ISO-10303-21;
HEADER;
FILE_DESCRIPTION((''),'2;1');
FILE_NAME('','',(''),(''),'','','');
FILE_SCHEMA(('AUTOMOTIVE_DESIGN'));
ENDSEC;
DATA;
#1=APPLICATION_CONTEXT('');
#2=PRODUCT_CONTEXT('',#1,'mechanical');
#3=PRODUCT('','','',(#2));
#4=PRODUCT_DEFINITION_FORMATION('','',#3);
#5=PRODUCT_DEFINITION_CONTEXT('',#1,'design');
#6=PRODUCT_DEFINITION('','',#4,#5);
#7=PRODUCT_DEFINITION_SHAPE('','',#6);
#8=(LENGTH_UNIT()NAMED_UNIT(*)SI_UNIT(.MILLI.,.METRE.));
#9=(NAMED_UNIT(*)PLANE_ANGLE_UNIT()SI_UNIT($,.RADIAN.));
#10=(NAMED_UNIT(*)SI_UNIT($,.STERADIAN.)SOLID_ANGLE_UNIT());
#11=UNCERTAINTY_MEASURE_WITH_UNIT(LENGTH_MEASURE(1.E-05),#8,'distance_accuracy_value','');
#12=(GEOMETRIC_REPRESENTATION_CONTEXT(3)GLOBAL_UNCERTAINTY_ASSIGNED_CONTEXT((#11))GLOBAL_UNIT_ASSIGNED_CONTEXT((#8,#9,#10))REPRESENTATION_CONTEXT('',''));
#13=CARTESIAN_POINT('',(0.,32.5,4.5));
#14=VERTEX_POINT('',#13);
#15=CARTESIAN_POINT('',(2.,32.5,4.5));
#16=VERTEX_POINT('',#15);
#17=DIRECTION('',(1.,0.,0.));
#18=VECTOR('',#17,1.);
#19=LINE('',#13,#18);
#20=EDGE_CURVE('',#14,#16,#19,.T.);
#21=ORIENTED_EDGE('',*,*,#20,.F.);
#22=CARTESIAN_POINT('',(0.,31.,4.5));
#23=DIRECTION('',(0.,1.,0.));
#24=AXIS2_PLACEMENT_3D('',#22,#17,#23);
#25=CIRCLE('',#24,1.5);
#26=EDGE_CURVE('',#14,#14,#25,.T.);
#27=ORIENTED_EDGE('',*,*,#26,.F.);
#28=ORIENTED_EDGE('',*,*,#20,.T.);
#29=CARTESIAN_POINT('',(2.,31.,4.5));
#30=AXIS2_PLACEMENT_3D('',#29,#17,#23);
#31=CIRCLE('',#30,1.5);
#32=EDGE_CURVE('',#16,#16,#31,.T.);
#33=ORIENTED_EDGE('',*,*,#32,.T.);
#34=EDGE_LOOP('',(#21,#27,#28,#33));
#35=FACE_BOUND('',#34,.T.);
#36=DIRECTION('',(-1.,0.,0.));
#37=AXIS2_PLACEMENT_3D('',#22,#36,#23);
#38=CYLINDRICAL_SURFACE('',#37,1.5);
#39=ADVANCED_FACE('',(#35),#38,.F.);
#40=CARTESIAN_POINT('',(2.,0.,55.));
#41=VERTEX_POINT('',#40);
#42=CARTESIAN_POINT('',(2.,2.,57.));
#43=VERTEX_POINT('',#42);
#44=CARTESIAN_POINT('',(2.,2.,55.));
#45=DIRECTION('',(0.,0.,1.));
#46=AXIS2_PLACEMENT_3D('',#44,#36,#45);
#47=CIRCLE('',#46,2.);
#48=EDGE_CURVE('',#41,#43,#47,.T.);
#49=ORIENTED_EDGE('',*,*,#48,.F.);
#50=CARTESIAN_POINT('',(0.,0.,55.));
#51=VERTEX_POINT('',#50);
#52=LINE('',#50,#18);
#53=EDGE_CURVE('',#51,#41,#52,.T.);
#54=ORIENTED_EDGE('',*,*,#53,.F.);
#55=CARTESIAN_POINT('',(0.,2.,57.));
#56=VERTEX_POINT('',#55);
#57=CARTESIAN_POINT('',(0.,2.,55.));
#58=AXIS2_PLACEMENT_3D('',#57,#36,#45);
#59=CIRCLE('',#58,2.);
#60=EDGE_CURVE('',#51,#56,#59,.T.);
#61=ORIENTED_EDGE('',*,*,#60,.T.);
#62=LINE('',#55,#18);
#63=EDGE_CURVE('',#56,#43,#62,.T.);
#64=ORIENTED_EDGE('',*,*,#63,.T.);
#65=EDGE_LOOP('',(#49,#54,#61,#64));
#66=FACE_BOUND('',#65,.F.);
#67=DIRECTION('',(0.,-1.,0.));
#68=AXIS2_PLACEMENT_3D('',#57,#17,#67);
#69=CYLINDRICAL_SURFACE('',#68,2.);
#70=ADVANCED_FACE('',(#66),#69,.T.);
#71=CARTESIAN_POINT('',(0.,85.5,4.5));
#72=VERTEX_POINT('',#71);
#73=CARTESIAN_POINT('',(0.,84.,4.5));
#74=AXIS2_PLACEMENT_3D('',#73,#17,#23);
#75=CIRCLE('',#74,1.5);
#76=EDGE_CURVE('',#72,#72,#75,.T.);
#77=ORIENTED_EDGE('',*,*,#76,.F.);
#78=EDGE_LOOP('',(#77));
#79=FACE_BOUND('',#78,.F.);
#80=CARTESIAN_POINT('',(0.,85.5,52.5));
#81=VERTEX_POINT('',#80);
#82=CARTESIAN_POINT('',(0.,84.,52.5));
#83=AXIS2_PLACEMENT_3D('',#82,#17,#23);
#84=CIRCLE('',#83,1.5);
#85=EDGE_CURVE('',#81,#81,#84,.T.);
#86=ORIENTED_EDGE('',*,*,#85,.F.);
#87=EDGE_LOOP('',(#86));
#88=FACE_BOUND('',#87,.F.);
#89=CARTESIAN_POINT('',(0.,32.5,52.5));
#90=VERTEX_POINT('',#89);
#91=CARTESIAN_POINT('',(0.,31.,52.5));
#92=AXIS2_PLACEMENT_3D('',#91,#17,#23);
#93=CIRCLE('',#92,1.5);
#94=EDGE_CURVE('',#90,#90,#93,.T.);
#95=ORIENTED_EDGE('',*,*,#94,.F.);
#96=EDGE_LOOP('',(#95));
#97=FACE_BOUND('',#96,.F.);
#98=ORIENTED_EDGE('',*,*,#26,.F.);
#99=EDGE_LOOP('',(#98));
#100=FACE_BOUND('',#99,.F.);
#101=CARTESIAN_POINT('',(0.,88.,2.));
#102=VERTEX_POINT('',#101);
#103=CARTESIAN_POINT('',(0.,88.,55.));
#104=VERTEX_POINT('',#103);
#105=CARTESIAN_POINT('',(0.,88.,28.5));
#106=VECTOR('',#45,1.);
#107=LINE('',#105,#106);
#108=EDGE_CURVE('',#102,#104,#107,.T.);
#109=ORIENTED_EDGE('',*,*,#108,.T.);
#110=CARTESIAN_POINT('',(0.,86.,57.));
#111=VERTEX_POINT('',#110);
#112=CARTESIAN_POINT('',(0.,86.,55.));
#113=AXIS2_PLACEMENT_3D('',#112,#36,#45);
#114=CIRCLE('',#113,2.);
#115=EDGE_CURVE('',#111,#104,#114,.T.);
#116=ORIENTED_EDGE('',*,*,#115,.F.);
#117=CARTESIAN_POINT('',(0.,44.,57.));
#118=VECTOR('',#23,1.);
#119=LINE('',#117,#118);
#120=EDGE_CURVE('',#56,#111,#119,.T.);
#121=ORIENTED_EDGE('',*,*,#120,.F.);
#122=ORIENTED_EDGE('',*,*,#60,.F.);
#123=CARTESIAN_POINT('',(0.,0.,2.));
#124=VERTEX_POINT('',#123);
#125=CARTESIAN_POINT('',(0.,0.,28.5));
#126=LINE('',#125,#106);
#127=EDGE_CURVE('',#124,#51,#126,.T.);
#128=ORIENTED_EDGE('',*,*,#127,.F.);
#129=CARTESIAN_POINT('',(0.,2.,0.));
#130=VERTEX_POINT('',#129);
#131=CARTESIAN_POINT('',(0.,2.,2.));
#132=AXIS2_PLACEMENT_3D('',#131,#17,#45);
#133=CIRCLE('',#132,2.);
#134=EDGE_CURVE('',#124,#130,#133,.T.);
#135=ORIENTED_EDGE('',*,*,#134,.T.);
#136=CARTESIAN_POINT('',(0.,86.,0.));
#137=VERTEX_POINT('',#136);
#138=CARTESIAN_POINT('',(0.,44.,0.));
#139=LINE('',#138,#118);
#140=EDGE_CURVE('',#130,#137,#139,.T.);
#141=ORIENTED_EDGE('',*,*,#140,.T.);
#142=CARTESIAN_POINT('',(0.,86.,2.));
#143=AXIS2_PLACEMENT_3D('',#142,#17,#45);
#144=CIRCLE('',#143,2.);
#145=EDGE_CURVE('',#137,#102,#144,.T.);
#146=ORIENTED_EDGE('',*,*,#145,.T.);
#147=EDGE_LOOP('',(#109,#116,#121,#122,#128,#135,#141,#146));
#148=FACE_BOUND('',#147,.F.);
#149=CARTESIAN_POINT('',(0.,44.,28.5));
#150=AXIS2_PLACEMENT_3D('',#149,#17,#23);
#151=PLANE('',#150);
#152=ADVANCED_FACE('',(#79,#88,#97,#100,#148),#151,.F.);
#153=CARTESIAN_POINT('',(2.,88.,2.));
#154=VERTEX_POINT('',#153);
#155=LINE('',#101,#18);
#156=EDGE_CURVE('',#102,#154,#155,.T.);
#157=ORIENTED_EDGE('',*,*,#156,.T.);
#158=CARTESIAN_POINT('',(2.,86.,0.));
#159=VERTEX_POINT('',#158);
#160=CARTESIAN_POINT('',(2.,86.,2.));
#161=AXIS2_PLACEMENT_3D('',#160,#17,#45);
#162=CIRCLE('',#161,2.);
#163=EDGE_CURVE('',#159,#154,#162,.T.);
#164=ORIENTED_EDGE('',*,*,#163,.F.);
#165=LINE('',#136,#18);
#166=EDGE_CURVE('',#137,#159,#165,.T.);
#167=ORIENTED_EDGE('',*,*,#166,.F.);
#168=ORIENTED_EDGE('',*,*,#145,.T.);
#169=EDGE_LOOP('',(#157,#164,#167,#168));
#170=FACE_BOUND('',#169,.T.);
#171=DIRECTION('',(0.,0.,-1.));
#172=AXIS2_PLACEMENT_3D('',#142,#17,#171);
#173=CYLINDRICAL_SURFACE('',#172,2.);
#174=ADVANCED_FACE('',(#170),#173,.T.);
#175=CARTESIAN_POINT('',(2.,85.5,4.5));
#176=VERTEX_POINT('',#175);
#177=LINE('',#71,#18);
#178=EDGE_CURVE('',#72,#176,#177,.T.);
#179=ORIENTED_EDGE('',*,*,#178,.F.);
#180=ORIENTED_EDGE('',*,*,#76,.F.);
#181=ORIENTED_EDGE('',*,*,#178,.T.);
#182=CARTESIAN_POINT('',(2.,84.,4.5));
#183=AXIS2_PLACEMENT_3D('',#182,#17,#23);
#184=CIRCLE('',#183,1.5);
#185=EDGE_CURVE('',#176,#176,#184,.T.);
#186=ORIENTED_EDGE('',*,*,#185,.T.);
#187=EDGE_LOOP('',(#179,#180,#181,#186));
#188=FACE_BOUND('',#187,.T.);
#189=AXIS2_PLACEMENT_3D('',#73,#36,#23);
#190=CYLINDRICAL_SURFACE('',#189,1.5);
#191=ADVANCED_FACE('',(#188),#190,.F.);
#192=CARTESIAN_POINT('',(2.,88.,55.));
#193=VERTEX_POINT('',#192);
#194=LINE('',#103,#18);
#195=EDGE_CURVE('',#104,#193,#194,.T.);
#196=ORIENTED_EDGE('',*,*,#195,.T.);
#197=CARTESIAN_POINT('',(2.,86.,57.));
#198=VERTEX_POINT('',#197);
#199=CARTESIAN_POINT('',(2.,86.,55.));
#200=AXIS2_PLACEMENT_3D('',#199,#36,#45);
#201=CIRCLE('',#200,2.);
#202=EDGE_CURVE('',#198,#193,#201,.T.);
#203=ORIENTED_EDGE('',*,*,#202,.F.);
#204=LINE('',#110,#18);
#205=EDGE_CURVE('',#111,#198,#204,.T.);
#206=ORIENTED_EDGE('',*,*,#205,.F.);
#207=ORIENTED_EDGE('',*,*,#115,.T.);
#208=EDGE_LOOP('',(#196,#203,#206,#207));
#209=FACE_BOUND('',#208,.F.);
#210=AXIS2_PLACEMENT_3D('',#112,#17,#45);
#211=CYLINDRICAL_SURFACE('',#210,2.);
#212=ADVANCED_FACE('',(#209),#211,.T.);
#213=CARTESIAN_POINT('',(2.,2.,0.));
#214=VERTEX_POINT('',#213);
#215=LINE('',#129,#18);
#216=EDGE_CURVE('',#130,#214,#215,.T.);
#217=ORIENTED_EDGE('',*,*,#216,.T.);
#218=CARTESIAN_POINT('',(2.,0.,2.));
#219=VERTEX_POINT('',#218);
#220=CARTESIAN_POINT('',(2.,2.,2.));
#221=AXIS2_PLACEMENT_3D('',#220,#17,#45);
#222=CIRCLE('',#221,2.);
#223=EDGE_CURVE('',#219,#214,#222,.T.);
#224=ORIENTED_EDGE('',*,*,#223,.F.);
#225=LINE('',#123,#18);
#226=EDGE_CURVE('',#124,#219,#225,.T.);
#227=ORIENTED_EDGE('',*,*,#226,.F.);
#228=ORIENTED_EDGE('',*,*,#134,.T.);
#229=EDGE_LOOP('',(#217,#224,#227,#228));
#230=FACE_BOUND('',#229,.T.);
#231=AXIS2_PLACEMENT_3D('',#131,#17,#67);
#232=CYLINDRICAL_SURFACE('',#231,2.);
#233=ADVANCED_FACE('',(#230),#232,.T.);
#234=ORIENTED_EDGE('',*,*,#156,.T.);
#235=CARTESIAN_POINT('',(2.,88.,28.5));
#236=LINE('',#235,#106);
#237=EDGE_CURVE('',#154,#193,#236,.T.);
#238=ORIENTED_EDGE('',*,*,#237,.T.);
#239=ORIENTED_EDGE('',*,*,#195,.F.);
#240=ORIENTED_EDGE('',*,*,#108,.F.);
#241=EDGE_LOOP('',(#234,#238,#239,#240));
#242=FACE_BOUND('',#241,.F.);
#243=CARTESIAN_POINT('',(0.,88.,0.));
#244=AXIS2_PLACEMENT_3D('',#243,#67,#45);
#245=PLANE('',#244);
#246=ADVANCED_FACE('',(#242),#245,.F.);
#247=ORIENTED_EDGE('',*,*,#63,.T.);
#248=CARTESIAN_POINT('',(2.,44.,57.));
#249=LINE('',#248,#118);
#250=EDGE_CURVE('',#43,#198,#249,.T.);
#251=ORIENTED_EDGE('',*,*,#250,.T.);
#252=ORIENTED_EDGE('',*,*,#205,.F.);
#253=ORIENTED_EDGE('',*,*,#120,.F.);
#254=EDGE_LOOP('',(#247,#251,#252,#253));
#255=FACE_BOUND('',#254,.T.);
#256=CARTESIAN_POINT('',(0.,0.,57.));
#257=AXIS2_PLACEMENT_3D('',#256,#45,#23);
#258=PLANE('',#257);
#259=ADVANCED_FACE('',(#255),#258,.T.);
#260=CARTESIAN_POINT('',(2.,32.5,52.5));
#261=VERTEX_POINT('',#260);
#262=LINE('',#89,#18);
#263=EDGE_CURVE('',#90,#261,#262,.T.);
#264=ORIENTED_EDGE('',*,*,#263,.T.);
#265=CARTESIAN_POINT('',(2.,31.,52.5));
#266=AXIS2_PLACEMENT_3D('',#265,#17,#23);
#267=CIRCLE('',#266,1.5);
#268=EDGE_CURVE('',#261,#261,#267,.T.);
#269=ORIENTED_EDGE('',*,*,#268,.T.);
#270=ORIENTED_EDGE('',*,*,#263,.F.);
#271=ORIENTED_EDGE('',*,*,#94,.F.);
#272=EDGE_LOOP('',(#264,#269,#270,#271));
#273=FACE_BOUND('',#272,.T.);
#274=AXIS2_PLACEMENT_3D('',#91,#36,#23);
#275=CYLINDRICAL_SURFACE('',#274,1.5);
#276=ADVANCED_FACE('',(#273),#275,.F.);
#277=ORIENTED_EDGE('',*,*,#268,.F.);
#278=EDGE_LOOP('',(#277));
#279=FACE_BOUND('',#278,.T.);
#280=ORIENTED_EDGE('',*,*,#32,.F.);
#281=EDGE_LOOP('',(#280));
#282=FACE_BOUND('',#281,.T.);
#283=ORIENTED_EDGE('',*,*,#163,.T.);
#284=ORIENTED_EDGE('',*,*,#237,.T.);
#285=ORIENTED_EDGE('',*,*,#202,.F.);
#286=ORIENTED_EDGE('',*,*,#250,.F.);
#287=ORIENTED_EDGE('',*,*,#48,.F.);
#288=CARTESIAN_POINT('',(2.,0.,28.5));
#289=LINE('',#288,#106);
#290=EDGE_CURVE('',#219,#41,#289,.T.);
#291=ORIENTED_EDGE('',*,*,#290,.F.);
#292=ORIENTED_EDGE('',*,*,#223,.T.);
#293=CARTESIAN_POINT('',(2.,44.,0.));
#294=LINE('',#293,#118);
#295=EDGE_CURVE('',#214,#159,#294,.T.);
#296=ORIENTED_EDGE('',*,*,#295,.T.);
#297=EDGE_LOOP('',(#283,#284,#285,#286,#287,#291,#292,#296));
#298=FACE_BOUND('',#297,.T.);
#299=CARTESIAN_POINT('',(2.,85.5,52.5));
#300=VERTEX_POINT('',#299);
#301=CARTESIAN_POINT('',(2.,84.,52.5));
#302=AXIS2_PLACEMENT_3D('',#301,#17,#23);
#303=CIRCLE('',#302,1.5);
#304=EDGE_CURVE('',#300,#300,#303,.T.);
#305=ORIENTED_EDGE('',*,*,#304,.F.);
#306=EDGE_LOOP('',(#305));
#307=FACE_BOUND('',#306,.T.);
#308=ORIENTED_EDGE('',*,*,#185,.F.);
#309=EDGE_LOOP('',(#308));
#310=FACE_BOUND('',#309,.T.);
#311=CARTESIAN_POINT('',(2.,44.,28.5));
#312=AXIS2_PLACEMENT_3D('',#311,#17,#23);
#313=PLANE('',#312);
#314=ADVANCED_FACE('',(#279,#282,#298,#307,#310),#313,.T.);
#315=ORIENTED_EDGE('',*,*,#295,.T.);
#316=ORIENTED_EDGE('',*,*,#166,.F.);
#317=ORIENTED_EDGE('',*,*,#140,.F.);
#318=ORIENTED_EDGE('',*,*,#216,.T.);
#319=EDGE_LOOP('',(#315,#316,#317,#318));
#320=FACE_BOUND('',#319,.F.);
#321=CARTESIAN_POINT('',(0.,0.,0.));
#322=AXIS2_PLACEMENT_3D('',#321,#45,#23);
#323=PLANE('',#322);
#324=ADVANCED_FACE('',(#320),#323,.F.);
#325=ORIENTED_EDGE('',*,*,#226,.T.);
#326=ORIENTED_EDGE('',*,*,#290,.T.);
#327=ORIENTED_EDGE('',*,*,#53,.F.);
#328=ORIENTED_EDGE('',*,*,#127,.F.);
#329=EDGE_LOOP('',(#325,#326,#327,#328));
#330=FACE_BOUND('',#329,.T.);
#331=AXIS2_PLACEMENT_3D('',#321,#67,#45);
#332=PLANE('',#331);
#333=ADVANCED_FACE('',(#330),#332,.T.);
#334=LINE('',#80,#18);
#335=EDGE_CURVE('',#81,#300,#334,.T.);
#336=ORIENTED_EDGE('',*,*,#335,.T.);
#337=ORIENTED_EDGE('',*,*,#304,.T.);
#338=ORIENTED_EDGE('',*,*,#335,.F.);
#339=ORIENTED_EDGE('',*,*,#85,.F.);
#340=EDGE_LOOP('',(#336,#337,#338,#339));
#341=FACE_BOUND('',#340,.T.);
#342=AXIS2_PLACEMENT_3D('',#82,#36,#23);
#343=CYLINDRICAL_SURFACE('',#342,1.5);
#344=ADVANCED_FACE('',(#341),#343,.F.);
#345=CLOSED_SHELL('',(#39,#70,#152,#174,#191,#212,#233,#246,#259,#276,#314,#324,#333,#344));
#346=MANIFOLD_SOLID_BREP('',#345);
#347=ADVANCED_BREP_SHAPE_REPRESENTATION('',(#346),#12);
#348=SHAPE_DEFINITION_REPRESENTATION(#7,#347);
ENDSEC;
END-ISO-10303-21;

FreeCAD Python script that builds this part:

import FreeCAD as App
import Part
import Sketcher
Q = App.Units.Quantity


def edges_at(feature, points):
    """Names of the edges that pass closest to the given points."""
    edges = feature.Shape.Edges
    near = lambda p: min(range(len(edges)), key=lambda i: edges[i].distToShape(Part.Vertex(*p))[0])
    return sorted({f"Edge{near(p) + 1}" for p in points})

doc = App.newDocument("Part")
params = doc.addObject("Spreadsheet::Sheet", "Params")
for row, (alias, value) in enumerate([
    ("sketch1_diameter", "3 mm"),
    ("sketch1_width", "88 mm"),
    ("sketch1_height", "57 mm"),
    ("pad1_length", "2 mm"),
    ("fillet_radius", "2 mm"),
], start=1):
    params.set(f"A{row}", alias)
    params.set(f"B{row}", "=" + value)
    params.setAlias(f"B{row}", alias)

body = doc.addObject("PartDesign::Body", "Body")

sketch1 = body.newObject("Sketcher::SketchObject", "Sketch")
sketch1.AttachmentSupport = (doc.getObject("YZ_Plane"), [""])
sketch1.MapMode = "FlatFace"
sketch1.addGeometry([
    Part.LineSegment(App.Vector(0, 57, 0), App.Vector(0, 0, 0)),
    Part.LineSegment(App.Vector(0, 0, 0), App.Vector(88, 0, 0)),
    Part.LineSegment(App.Vector(88, 0, 0), App.Vector(88, 57, 0)),
    Part.LineSegment(App.Vector(88, 57, 0), App.Vector(0, 57, 0)),
    Part.Circle(App.Vector(31, 4.5, 0), App.Vector(0, 0, 1), 1.5),
    Part.Circle(App.Vector(84, 4.5, 0), App.Vector(0, 0, 1), 1.5),
    Part.Circle(App.Vector(31, 52.5, 0), App.Vector(0, 0, 1), 1.5),
    Part.Circle(App.Vector(84, 52.5, 0), App.Vector(0, 0, 1), 1.5),
], False)
sketch1.addConstraint([
    Sketcher.Constraint("Coincident", 0, 2, 1, 1),
    Sketcher.Constraint("Coincident", 1, 2, 2, 1),
    Sketcher.Constraint("Coincident", 2, 2, 3, 1),
    Sketcher.Constraint("Coincident", 3, 2, 0, 1),
    Sketcher.Constraint("Vertical", 0),
    Sketcher.Constraint("Horizontal", 1),
    Sketcher.Constraint("Vertical", 2),
    Sketcher.Constraint("Horizontal", 3),
    Sketcher.Constraint("Coincident", 0, 2, -1, 1),
    Sketcher.Constraint("Equal", 4, 5),
    Sketcher.Constraint("Equal", 5, 6),
    Sketcher.Constraint("Equal", 6, 7),
    Sketcher.Constraint("Horizontal", 4, 3, 5, 3),
    Sketcher.Constraint("Horizontal", 6, 3, 7, 3),
    Sketcher.Constraint("Vertical", 4, 3, 6, 3),
    Sketcher.Constraint("Vertical", 5, 3, 7, 3),
    Sketcher.Constraint("Diameter", 4, Q("3 mm")),
    Sketcher.Constraint("DistanceX", 1, 1, 1, 2, Q("88 mm")),
    Sketcher.Constraint("DistanceY", 0, 2, 0, 1, Q("57 mm")),
    Sketcher.Constraint("DistanceX", -1, 1, 4, 3, Q("31 mm")),
    Sketcher.Constraint("DistanceX", -1, 1, 5, 3, Q("84 mm")),
    Sketcher.Constraint("DistanceY", 4, 3, 6, 3, Q("48 mm")),
    Sketcher.Constraint("DistanceY", -1, 1, 4, 3, Q("4.5 mm")),
])
sketch1.setExpression("Constraints[16]", "Params.sketch1_diameter")
sketch1.setExpression("Constraints[17]", "Params.sketch1_width")
sketch1.setExpression("Constraints[18]", "Params.sketch1_height")
pad1 = body.newObject("PartDesign::Pad", "Pad")
pad1.Profile = sketch1
pad1.setExpression("Length", "Params.pad1_length")
doc.recompute()

fillet = body.newObject("PartDesign::Fillet", "Fillet")
fillet.Base = (pad1, edges_at(pad1, [
    (1, 0, 0),
    (1, 88, 0),
    (1, 0, 57),
    (1, 88, 57),
]))
fillet.setExpression("Radius", "Params.fillet_radius")

doc.recompute()
